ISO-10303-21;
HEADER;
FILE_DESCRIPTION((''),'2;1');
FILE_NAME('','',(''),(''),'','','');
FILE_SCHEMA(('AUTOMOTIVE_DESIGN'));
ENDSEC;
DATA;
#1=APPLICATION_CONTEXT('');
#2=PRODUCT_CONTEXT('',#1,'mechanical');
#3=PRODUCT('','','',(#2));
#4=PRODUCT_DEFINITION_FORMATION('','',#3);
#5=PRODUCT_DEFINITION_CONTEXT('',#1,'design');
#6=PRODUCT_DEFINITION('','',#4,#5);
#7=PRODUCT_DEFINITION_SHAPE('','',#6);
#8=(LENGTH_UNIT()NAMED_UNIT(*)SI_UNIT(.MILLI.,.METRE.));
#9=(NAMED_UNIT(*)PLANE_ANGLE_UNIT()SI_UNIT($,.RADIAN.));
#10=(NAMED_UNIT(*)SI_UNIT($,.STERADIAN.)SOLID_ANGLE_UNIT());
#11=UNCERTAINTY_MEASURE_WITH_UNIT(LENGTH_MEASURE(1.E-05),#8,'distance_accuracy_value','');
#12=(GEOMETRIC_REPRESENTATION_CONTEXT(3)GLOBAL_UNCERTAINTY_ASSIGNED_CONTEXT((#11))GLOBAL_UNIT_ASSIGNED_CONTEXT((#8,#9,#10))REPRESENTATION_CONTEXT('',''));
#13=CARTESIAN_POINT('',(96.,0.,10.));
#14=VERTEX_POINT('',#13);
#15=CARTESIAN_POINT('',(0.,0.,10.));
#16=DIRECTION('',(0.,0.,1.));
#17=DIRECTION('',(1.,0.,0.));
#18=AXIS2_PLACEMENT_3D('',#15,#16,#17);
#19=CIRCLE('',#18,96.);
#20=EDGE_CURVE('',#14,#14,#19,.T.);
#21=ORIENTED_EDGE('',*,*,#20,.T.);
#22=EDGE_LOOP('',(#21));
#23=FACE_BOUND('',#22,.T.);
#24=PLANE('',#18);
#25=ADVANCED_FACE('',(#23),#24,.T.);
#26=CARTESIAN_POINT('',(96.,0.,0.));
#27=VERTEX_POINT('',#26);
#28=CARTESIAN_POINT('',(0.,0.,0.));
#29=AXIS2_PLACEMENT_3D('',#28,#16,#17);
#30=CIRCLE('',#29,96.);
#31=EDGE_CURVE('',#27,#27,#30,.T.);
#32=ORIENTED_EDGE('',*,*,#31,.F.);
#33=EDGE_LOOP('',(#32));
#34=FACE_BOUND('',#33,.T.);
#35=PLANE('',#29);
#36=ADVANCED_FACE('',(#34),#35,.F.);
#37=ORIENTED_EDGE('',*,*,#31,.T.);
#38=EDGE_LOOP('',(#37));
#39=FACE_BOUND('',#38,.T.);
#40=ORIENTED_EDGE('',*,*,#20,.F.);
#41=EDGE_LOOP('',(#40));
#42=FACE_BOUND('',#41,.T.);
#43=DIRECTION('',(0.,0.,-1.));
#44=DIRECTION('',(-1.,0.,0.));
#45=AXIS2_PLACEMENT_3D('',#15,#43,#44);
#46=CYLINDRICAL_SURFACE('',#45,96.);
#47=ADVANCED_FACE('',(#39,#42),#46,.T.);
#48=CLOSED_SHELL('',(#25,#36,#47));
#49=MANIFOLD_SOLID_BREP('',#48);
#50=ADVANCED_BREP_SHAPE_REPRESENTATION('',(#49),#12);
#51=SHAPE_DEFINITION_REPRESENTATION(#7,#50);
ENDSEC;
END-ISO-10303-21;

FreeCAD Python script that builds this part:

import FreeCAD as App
import Part
import Sketcher
from FreeCAD import Vector
Q = App.Units.Quantity

doc = App.newDocument("Part")
body = doc.addObject("PartDesign::Body", "Body")

# Sketch on XY plane
sketch1 = doc.addObject("Sketcher::SketchObject", "Sketch")
body.addObject(sketch1)
sketch1.AttachmentSupport = (doc.XY_Plane, [""])
sketch1.MapMode = "FlatFace"
sketch1.addGeometry(Part.Circle(Vector(0, 0, 0), Vector(0, 0, 1), 96), False)
sketch1.addConstraint(Sketcher.Constraint("Coincident", 0, 3, -1, 1))
sketch1.addConstraint(Sketcher.Constraint("Diameter", 0, Q("192 mm")))
pad1 = doc.addObject("PartDesign::Pad", "Pad")
body.addObject(pad1)
pad1.Profile = sketch1
pad1.Length = 10

doc.recompute()
